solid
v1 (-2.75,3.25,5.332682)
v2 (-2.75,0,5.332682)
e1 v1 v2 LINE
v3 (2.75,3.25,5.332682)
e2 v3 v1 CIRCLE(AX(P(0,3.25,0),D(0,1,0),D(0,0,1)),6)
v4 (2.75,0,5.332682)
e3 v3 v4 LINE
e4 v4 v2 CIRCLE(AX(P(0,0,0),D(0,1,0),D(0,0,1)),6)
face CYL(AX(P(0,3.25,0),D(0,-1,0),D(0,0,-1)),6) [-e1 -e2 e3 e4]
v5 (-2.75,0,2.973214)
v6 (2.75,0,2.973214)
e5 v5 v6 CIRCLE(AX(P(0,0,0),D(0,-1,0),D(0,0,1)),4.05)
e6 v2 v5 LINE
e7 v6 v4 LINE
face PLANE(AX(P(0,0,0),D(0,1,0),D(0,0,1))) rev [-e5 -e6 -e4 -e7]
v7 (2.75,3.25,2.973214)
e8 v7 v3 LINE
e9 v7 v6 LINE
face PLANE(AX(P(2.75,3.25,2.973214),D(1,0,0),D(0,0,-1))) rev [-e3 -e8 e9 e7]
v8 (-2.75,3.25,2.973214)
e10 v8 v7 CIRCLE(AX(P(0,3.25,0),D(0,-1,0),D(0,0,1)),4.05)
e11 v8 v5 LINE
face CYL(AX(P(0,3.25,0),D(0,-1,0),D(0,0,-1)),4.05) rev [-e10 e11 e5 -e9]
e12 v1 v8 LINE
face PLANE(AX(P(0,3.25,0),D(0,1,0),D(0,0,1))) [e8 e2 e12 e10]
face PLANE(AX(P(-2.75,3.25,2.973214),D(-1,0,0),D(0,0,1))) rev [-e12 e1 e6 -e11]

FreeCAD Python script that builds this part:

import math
import FreeCAD as App
import Part
import Sketcher
Q = App.Units.Quantity

doc = App.newDocument("Part")
body = doc.addObject("PartDesign::Body", "Body")

# Sketch on XZ plane
sketch1 = body.newObject("Sketcher::SketchObject", "Sketch")
sketch1.AttachmentSupport = (doc.getObject("XZ_Plane"), [""])
sketch1.MapMode = "FlatFace"
sketch1.addGeometry(Part.LineSegment(App.Vector(-2.8, 5.3, 0), App.Vector(-2.8, 3, 0)), False)
sketch1.addGeometry(Part.ArcOfCircle(Part.Circle(App.Vector(0, 0, 0), App.Vector(0, 0, 1), 4), math.radians(133), math.radians(407)), False)
sketch1.addGeometry(Part.LineSegment(App.Vector(2.8, 3, 0), App.Vector(2.8, 5.3, 0)), False)
sketch1.addGeometry(Part.ArcOfCircle(Part.Circle(App.Vector(0, 0, 0), App.Vector(0, 0, 1), 6), math.radians(117), math.radians(423)), False)
sketch1.addConstraint(Sketcher.Constraint("Coincident", 0, 2, 1, 1))
sketch1.addConstraint(Sketcher.Constraint("Coincident", 1, 2, 2, 1))
sketch1.addConstraint(Sketcher.Constraint("Coincident", 2, 2, 3, 2))
sketch1.addConstraint(Sketcher.Constraint("Coincident", 3, 1, 0, 1))
sketch1.addConstraint(Sketcher.Constraint("Vertical", 0))
sketch1.addConstraint(Sketcher.Constraint("Vertical", 2))
sketch1.addConstraint(Sketcher.Constraint("Coincident", 1, 3, -1, 1))
sketch1.addConstraint(Sketcher.Constraint("Coincident", 3, 3, -1, 1))
sketch1.addConstraint(Sketcher.Constraint("Horizontal", 0, 2, 1, 2))
sketch1.addConstraint(Sketcher.Constraint("Radius", 3, Q("6 mm")))
sketch1.addConstraint(Sketcher.Constraint("Radius", 1, Q("4.05 mm")))
sketch1.addConstraint(Sketcher.Constraint("DistanceX", 0, 2, 1, 2, Q("5.5 mm")))
pad1 = body.newObject("PartDesign::Pad", "Pad")
pad1.Profile = sketch1
pad1.Length = 3.25
pad1.Reversed = True

doc.recompute()
